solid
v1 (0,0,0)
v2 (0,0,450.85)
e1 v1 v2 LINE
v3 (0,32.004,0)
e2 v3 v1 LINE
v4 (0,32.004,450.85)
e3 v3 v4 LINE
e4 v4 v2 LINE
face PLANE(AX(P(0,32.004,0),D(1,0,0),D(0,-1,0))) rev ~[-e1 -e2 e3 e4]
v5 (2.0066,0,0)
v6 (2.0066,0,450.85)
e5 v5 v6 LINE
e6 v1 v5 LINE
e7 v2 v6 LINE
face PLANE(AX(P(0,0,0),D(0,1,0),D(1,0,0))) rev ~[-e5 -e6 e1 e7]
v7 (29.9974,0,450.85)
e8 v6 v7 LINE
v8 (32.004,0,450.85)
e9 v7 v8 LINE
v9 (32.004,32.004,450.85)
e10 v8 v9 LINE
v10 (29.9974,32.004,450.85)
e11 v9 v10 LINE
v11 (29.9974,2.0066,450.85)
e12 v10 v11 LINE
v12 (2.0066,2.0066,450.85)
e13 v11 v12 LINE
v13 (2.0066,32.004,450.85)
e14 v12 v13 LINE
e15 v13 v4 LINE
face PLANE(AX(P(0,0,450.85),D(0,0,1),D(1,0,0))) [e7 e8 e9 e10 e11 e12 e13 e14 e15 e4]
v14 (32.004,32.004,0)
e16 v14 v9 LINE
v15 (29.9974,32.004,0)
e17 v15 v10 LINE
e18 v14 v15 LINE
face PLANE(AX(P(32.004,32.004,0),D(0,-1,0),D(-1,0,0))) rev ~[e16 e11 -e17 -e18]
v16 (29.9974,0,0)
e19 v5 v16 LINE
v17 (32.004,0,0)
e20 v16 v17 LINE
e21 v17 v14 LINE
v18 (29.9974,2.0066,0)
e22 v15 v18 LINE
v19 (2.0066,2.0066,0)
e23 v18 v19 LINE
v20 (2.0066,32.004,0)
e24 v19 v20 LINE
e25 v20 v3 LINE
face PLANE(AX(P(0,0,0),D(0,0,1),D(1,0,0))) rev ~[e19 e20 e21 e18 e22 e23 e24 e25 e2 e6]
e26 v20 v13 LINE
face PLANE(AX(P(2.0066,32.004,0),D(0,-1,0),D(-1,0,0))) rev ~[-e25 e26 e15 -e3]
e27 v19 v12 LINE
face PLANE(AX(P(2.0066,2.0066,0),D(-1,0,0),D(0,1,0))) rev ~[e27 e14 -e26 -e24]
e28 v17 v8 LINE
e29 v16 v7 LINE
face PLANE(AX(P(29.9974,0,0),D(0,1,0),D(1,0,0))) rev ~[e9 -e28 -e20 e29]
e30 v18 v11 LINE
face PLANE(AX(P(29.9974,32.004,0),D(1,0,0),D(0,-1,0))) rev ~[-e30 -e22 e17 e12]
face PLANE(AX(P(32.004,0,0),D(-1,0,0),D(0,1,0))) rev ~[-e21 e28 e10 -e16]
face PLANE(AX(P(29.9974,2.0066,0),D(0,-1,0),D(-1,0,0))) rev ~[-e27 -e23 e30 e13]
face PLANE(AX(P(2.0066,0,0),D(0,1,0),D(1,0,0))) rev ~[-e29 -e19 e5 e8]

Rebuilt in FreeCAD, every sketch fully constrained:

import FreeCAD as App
import Part
import Sketcher
from FreeCAD import Vector
Q = App.Units.Quantity

doc = App.newDocument("Part")
body = doc.addObject("PartDesign::Body", "Body")

# Sketch on XY plane
sketch1 = body.newObject("Sketcher::SketchObject", "Sketch")
sketch1.AttachmentSupport = (doc.getObject("XY_Plane"), [""])
sketch1.MapMode = "FlatFace"
sketch1.addGeometry([
    Part.LineSegment(Vector(2, 2, 0), Vector(2, 32, 0)),  # 0
    Part.LineSegment(Vector(2, 32, 0), Vector(0, 32, 0)),  # 1
    Part.LineSegment(Vector(0, 32, 0), Vector(0, 0, 0)),  # 2
    Part.LineSegment(Vector(0, 0, 0), Vector(32, 0, 0)),  # 3
    Part.LineSegment(Vector(32, 0, 0), Vector(32, 32, 0)),  # 4
    Part.LineSegment(Vector(32, 32, 0), Vector(30, 32, 0)),  # 5
    Part.LineSegment(Vector(30, 32, 0), Vector(30, 2, 0)),  # 6
    Part.LineSegment(Vector(30, 2, 0), Vector(2, 2, 0)),  # 7
], False)
sketch1.addConstraint([
    Sketcher.Constraint("Coincident", 0, 2, 1, 1),
    Sketcher.Constraint("Coincident", 1, 2, 2, 1),
    Sketcher.Constraint("Coincident", 2, 2, 3, 1),
    Sketcher.Constraint("Coincident", 3, 2, 4, 1),
    Sketcher.Constraint("Coincident", 4, 2, 5, 1),
    Sketcher.Constraint("Coincident", 5, 2, 6, 1),
    Sketcher.Constraint("Coincident", 6, 2, 7, 1),
    Sketcher.Constraint("Coincident", 7, 2, 0, 1),
    Sketcher.Constraint("Vertical", 0),
    Sketcher.Constraint("Horizontal", 1),
    Sketcher.Constraint("Vertical", 2),
    Sketcher.Constraint("Horizontal", 3),
    Sketcher.Constraint("Vertical", 4),
    Sketcher.Constraint("Horizontal", 5),
    Sketcher.Constraint("Vertical", 6),
    Sketcher.Constraint("Horizontal", 7),
    Sketcher.Constraint("Coincident", 2, 2, -1, 1),
    Sketcher.Constraint("Horizontal", 1, 2, 4, 2),
    Sketcher.Constraint("Equal", 1, 5),
    Sketcher.Constraint("Equal", 3, 2),
    Sketcher.Constraint("DistanceX", 3, 1, 3, 2, Q("1.26 in")),
    Sketcher.Constraint("DistanceX", 1, 2, 1, 1, Q("0.079 in")),
    Sketcher.Constraint("DistanceY", -1, 1, 6, 2, Q("0.079 in")),
])
pad1 = body.newObject("PartDesign::Pad", "Pad")
pad1.Profile = sketch1
pad1.Length = Q("17.75 in")

doc.recompute()
